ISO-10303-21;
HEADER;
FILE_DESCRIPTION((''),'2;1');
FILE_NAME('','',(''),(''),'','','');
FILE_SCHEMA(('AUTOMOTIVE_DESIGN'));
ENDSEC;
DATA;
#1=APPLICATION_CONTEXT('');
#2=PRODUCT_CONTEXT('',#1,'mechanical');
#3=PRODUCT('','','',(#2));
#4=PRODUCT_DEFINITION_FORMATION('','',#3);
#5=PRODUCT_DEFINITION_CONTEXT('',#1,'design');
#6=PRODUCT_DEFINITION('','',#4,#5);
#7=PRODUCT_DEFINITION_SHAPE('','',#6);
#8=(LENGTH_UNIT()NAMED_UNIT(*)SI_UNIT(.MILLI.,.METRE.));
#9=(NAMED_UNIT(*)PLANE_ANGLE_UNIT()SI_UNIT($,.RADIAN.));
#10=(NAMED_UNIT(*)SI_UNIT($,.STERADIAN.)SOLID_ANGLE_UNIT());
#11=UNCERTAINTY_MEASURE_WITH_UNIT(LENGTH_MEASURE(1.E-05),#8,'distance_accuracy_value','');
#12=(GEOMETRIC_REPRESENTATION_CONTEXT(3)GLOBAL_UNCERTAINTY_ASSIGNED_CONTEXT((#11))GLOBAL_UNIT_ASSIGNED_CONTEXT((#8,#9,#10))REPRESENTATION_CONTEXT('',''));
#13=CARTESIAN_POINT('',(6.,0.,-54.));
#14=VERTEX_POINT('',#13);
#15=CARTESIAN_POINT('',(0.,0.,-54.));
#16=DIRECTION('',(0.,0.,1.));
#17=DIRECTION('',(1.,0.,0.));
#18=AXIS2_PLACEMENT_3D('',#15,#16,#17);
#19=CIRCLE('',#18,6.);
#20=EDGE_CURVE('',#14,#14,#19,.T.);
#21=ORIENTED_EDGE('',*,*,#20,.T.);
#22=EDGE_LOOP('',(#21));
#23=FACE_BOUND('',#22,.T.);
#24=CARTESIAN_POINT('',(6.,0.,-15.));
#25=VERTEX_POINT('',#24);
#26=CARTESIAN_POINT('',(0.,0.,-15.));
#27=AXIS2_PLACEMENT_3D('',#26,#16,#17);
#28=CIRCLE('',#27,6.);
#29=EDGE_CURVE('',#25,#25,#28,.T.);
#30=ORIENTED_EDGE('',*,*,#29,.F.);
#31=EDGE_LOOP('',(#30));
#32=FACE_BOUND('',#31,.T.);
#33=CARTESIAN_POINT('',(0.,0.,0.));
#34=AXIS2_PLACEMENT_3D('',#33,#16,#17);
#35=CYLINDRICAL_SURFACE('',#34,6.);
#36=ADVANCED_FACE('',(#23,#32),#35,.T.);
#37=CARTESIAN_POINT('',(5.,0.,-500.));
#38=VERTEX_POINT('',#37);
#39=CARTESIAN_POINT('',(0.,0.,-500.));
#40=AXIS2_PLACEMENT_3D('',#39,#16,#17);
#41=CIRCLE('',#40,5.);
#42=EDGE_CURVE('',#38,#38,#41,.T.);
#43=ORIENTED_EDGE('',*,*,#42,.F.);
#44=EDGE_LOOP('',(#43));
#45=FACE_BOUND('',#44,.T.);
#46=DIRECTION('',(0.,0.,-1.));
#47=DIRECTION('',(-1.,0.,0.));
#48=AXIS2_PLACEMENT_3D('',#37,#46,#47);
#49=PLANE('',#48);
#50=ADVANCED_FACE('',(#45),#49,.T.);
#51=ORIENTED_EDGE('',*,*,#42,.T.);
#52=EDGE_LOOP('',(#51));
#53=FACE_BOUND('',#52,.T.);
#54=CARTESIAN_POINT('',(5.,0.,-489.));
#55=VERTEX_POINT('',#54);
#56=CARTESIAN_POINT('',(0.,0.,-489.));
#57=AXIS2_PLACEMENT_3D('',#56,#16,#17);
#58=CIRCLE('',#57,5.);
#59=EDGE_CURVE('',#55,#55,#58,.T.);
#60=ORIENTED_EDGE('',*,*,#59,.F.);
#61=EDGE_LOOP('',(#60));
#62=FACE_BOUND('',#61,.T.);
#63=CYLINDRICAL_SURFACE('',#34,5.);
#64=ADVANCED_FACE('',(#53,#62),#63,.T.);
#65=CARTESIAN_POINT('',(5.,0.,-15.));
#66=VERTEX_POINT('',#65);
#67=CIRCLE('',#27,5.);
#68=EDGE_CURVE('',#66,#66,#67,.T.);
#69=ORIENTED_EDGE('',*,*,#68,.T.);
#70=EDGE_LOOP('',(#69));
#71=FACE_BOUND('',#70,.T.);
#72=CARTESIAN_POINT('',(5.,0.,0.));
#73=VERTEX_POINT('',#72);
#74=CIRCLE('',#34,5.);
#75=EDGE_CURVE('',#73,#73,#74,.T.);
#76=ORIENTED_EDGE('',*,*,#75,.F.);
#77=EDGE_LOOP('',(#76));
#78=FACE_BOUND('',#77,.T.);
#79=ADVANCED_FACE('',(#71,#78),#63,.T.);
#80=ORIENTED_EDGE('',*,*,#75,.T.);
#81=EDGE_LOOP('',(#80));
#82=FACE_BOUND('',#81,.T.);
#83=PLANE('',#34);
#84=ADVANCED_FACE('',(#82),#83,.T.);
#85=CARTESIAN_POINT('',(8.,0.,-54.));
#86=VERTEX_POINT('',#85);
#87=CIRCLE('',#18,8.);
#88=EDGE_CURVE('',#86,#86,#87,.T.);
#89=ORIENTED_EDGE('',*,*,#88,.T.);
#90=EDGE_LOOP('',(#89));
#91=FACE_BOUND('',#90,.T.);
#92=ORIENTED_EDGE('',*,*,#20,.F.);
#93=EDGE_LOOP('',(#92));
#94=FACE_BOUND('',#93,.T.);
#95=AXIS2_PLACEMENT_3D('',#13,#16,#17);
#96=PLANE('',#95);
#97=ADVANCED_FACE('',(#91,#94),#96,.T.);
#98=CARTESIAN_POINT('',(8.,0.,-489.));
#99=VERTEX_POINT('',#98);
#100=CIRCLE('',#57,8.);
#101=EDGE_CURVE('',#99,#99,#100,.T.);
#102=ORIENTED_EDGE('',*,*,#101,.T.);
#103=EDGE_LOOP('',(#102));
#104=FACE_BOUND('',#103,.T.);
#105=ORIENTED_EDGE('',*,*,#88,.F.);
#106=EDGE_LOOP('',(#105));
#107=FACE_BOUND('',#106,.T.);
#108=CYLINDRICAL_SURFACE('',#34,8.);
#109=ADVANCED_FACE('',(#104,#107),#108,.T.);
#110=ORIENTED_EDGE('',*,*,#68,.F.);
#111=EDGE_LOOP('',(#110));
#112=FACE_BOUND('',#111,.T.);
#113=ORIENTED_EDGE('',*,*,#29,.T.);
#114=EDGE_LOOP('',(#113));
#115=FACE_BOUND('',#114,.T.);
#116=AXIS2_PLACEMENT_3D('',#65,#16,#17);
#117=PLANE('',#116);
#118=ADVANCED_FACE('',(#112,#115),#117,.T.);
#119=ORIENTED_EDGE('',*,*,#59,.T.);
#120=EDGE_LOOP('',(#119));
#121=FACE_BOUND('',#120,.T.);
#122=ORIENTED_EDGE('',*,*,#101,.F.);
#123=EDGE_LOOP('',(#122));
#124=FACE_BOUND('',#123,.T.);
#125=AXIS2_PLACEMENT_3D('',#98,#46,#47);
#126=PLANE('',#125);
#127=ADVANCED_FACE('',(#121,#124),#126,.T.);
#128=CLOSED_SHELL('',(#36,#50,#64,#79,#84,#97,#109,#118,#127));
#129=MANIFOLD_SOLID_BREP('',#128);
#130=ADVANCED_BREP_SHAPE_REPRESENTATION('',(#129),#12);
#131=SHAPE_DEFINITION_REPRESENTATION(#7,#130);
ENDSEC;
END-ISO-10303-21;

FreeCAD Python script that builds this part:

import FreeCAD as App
import Part
import Sketcher
from FreeCAD import Vector


def add_polygon(sketch, points):
    """Adds a closed chain of lines whose ends are joined by coincident constraints."""
    first, n = sketch.GeometryCount, len(points)
    for a, b in zip(points, points[1:] + points[:1]):
        sketch.addGeometry(Part.LineSegment(App.Vector(*a, 0), App.Vector(*b, 0)), False)
    for i in range(n):
        sketch.addConstraint(Sketcher.Constraint("Coincident", first + i, 2, first + (i + 1) % n, 1))

doc = App.newDocument("Part")
body = doc.addObject("PartDesign::Body", "Body")

sketch1 = body.newObject("Sketcher::SketchObject", "Sketch")
sketch1.AttachmentSupport = (doc.getObject("XZ_Plane"), [""])
sketch1.MapMode = "FlatFace"
add_polygon(sketch1, [(0, 0), (5, 0), (5, -15), (6, -15), (6, -54), (8, -54), (8, -489), (5, -489), (5, -500), (0, -500)])
sketch1.addConstraint([
    Sketcher.Constraint("Horizontal", 0),
    Sketcher.Constraint("Vertical", 1),
    Sketcher.Constraint("Horizontal", 2),
    Sketcher.Constraint("Vertical", 3),
    Sketcher.Constraint("Horizontal", 4),
    Sketcher.Constraint("Vertical", 5),
    Sketcher.Constraint("Horizontal", 6),
    Sketcher.Constraint("Vertical", 7),
    Sketcher.Constraint("Horizontal", 8),
    Sketcher.Constraint("Vertical", 9),
    Sketcher.Constraint("Coincident", 9, 2, -1, 1),
    Sketcher.Constraint("Vertical", 1, 2, 6, 2),
    Sketcher.Constraint("DistanceX", 0, 1, 0, 2, 5.0),
    Sketcher.Constraint("DistanceX", 2, 1, 2, 2, 1.0),
    Sketcher.Constraint("DistanceX", 4, 1, 4, 2, 2.0),
    Sketcher.Constraint("DistanceY", 1, 2, 1, 1, 15.0),
    Sketcher.Constraint("DistanceY", 3, 2, 3, 1, 39.0),
    Sketcher.Constraint("DistanceY", 5, 2, 5, 1, 435.0),
    Sketcher.Constraint("DistanceY", 7, 2, 7, 1, 11.0),
])
revolution = body.newObject("PartDesign::Revolution", "Revolution")
revolution.Profile = sketch1
revolution.ReferenceAxis = (sketch1, ["V_Axis"])
revolution.Angle = 360

doc.recompute()
